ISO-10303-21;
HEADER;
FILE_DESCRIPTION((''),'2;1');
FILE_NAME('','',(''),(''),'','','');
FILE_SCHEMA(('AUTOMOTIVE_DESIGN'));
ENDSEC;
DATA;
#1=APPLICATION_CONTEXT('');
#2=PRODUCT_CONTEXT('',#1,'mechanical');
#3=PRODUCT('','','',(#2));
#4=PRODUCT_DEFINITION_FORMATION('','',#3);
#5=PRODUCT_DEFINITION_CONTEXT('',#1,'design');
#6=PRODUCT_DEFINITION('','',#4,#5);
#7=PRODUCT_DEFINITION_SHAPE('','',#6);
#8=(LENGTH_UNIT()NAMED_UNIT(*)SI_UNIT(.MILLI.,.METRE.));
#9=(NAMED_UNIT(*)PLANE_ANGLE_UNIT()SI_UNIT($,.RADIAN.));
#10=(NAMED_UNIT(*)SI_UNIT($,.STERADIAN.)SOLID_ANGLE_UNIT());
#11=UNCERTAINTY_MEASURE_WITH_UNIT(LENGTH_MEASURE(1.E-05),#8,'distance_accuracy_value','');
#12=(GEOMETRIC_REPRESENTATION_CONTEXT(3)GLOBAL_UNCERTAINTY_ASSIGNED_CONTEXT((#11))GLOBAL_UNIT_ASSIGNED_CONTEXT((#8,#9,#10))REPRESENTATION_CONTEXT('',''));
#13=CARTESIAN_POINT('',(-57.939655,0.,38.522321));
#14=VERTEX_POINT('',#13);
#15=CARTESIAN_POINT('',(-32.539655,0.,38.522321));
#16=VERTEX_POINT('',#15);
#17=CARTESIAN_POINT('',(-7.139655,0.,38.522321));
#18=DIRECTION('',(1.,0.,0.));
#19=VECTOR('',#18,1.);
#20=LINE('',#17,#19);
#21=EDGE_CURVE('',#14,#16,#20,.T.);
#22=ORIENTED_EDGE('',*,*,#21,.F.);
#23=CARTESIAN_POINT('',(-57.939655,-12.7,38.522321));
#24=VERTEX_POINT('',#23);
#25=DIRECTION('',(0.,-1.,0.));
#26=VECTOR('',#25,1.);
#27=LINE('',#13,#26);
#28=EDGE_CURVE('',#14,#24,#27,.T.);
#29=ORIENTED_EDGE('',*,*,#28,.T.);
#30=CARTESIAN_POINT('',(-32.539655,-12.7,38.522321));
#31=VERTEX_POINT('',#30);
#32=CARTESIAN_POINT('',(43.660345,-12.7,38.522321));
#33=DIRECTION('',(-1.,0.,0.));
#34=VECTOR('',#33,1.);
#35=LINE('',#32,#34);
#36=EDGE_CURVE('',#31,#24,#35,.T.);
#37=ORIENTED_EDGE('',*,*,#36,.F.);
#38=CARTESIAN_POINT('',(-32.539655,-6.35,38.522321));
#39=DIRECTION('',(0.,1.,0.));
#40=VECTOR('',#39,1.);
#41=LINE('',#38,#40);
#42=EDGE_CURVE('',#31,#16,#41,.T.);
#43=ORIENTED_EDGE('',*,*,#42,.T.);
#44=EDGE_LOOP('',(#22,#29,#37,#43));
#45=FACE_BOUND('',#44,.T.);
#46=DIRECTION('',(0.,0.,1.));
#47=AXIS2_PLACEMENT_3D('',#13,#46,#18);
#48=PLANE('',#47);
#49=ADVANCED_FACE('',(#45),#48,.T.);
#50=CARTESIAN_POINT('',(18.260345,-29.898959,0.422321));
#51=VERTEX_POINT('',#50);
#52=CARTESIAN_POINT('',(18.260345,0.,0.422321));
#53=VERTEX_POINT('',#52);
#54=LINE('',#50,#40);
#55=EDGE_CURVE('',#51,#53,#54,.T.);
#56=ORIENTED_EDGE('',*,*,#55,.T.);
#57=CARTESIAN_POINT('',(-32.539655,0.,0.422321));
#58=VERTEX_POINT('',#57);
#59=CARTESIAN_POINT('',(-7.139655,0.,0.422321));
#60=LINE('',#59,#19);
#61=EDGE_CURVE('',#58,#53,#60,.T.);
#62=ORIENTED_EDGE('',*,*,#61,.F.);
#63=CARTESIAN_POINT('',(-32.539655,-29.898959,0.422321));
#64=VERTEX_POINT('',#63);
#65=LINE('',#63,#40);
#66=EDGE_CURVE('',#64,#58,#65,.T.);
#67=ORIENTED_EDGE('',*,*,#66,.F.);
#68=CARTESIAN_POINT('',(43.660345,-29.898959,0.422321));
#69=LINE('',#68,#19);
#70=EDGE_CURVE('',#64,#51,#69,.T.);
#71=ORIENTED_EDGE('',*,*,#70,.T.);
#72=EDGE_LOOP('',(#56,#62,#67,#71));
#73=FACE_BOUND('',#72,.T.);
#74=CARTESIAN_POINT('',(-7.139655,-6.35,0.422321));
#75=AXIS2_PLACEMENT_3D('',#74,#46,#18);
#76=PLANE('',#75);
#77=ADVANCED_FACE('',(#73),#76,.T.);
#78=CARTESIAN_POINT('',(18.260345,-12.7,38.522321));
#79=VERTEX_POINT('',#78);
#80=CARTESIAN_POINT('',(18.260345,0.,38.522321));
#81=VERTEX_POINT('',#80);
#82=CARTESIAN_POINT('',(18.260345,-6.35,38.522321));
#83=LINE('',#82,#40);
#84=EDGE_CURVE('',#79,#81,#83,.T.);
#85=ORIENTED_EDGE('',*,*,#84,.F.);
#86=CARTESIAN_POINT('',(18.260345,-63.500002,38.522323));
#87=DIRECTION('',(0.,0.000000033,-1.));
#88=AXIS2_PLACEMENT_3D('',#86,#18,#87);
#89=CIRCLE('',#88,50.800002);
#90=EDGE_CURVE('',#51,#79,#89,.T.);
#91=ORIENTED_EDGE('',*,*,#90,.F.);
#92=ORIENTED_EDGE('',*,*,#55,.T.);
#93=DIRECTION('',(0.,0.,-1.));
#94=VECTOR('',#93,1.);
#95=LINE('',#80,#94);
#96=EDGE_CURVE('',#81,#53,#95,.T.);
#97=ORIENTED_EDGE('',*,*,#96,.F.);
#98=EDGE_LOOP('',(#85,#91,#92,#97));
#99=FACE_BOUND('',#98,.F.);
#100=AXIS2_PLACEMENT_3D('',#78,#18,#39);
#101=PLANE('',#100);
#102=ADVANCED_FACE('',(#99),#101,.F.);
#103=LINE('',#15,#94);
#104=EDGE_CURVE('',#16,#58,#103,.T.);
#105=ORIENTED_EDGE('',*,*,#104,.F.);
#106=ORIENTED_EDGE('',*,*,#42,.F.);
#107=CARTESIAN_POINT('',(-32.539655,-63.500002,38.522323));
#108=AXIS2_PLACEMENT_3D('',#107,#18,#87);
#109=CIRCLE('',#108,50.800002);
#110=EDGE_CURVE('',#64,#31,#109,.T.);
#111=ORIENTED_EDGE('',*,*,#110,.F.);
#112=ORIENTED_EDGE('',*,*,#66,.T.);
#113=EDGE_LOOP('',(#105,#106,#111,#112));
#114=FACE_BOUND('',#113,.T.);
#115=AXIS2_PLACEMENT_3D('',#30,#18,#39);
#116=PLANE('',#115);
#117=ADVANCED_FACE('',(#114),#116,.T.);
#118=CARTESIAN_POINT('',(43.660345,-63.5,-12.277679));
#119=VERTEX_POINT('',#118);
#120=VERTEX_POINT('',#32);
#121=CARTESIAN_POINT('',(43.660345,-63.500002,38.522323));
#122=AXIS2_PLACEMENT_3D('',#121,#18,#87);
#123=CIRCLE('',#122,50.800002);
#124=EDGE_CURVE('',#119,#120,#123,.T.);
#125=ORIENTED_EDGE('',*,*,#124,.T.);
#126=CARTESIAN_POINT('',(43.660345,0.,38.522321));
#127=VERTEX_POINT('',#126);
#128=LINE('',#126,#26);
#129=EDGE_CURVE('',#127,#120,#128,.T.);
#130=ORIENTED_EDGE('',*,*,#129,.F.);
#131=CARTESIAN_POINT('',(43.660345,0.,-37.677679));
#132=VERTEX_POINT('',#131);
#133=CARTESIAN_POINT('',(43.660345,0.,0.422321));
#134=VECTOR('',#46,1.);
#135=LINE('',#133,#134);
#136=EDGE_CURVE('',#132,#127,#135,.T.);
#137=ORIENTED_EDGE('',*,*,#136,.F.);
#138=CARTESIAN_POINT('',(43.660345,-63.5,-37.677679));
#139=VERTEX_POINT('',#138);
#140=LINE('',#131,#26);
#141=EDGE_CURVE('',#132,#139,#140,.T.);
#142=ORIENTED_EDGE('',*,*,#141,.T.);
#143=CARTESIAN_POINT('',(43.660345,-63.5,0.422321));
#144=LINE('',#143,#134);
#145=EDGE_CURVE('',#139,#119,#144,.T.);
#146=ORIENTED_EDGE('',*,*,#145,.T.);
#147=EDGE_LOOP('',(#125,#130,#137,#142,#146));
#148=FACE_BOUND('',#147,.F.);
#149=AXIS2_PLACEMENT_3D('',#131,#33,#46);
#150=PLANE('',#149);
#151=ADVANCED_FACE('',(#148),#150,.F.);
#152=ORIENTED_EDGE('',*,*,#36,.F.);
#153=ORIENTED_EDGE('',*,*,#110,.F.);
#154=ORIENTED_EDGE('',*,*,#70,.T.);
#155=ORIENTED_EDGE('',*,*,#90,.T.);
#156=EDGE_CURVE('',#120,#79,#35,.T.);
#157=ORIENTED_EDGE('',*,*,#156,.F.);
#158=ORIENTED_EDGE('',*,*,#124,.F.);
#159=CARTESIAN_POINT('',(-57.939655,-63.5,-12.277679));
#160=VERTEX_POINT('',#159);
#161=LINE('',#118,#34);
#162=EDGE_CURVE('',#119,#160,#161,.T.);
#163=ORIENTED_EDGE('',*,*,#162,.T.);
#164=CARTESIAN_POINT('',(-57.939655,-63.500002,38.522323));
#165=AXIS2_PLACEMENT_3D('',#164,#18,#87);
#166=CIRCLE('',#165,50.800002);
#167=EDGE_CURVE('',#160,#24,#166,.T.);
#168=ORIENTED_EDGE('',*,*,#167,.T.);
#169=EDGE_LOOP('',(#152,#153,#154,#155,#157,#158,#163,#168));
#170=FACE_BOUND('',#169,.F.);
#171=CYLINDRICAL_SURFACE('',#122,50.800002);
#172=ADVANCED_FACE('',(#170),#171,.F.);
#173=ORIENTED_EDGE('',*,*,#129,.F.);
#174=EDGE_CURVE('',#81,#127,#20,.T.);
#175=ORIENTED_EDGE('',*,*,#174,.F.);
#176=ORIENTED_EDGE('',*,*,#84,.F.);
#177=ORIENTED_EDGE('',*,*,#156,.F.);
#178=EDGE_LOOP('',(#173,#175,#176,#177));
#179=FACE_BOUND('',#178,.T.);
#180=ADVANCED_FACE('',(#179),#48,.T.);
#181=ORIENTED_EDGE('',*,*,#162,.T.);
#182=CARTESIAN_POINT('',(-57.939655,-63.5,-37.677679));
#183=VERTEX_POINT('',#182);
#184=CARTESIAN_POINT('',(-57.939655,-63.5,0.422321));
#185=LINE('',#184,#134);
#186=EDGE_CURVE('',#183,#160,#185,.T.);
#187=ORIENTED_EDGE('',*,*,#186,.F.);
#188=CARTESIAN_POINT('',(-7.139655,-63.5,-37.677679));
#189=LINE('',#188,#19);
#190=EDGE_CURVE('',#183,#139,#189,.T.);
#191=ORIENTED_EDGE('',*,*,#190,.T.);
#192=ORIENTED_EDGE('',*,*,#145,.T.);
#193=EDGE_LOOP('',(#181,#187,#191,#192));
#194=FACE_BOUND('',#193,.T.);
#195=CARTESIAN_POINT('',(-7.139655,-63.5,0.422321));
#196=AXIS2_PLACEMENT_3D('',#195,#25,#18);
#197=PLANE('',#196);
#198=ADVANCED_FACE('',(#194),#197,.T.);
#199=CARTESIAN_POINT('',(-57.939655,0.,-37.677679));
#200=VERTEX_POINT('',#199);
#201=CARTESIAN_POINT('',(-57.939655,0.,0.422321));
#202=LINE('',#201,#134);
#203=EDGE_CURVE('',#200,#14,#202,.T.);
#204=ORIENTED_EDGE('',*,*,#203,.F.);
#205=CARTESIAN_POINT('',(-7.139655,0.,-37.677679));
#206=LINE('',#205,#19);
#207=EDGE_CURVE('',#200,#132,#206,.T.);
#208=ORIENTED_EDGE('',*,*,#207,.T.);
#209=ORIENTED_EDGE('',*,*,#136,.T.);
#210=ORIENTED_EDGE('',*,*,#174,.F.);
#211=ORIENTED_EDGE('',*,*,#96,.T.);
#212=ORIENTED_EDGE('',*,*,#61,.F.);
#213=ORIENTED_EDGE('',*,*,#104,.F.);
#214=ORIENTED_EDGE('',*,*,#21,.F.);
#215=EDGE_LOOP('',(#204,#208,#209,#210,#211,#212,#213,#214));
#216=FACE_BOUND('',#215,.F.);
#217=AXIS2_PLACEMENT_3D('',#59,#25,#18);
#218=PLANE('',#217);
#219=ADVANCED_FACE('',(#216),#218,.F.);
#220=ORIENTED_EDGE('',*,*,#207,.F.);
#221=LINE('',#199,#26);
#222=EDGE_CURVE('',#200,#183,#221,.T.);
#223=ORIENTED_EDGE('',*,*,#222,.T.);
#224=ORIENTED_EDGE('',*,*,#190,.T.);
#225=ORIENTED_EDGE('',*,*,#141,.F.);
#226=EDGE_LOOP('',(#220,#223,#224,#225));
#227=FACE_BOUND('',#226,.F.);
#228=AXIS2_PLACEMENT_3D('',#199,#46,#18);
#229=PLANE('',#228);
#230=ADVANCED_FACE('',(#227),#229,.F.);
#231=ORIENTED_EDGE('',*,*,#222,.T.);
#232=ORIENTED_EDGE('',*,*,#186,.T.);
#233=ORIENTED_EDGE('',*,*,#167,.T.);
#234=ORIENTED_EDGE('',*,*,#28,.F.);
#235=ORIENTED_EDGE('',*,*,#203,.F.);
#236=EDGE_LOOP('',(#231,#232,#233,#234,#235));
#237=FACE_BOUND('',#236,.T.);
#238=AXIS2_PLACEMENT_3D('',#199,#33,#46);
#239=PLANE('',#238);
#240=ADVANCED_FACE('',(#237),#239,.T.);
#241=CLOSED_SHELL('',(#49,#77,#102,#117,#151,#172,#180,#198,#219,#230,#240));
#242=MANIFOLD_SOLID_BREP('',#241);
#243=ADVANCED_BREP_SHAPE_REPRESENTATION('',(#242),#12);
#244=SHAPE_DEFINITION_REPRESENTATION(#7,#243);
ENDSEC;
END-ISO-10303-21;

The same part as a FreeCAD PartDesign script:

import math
import FreeCAD as App
import Part
import Sketcher

V = App.Vector
Q = App.Units.Quantity


def add_polygon(sketch, points):
    """Adds a closed chain of lines whose ends are joined by coincident constraints."""
    first, n = sketch.GeometryCount, len(points)
    for a, b in zip(points, points[1:] + points[:1]):
        sketch.addGeometry(Part.LineSegment(App.Vector(*a, 0), App.Vector(*b, 0)), False)
    for i in range(n):
        sketch.addConstraint(Sketcher.Constraint("Coincident", first + i, 2, first + (i + 1) % n, 1))

doc = App.newDocument("Part")
params = doc.addObject("Spreadsheet::Sheet", "Params")
for row, (alias, value) in enumerate([
    ("sketch1_width", "4 in"),
    ("sketch1_height", "3 in"),
    ("pad1_length", "2.5 in"),
    ("sketch2_radius", "2.0000001 in"),
    ("sketch3_width", "2 in"),
    ("sketch3_height", "0.5 in"),
    ("pocket2_length", "1.5 in"),
    ("sketch4_width", "2 in"),
    ("sketch4_height", "1.5 in"),
], start=1):
    params.set(f"A{row}", alias)
    params.set(f"B{row}", "=" + value)
    params.setAlias(f"B{row}", alias)

body = doc.addObject("PartDesign::Body", "Body")

# Sketch on XZ plane
sketch1 = body.newObject("Sketcher::SketchObject", "Sketch")
sketch1.AttachmentSupport = (doc.getObject("XZ_Plane"), [""])
sketch1.MapMode = "FlatFace"
add_polygon(sketch1, [(-58, 39), (-58, -38), (44, -38), (44, 39)])  # lines 0-3
sketch1.addConstraint([
    Sketcher.Constraint("Vertical", 0),
    Sketcher.Constraint("Horizontal", 1),
    Sketcher.Constraint("Vertical", 2),
    Sketcher.Constraint("Horizontal", 3),
    Sketcher.Constraint("DistanceX", 1, 1, 1, 2, Q("4 in")),
    Sketcher.Constraint("DistanceY", 0, 2, 0, 1, Q("3 in")),
    Sketcher.Constraint("DistanceY", 0, 2, -1, 1, Q("37.677679 mm")),
    Sketcher.Constraint("DistanceX", 0, 2, -1, 1, Q("57.939655 mm")),
])
sketch1.setExpression("Constraints[8]", "Params.sketch1_width")
sketch1.setExpression("Constraints[9]", "Params.sketch1_height")
pad1 = body.newObject("PartDesign::Pad", "Pad")
pad1.Profile = sketch1
pad1.setExpression("Length", "Params.pad1_length")

# Sketch on YZ plane
sketch2 = body.newObject("Sketcher::SketchObject", "Sketch001")
sketch2.AttachmentSupport = (doc.getObject("YZ_Plane"), [""])
sketch2.MapMode = "FlatFace"
sketch2.AttachmentOffset = App.Placement(V(0, 0, 43.660345), App.Rotation())
sketch2.addGeometry([
    Part.LineSegment(V(-64, 39, 0), V(-64, -12, 0)),
    Part.ArcOfCircle(Part.Circle(V(-64, 39, 0), V(0, 0, 1), 51), math.radians(-90), math.radians(0)),
    Part.LineSegment(V(-13, 39, 0), V(-64, 39, 0)),
], False)
sketch2.addConstraint([
    Sketcher.Constraint("Coincident", 0, 2, 1, 1),
    Sketcher.Constraint("Coincident", 1, 2, 2, 1),
    Sketcher.Constraint("Coincident", 2, 2, 0, 1),
    Sketcher.Constraint("Vertical", 0),
    Sketcher.Constraint("Horizontal", 2),
    Sketcher.Constraint("Coincident", 2, 2, 1, 3),
    Sketcher.Constraint("Radius", 1, Q("2.0000001 in")),
    Sketcher.Constraint("DistanceX", 1, 3, -1, 1, Q("2.5000001 in")),
    Sketcher.Constraint("DistanceY", 0, 2, -1, 1, Q("12.277679 mm")),
])
sketch2.setExpression("Constraints[6]", "Params.sketch2_radius")
pocket1 = body.newObject("PartDesign::Pocket", "Pocket")
pocket1.Profile = sketch2
pocket1.Type = "ThroughAll"

# Sketch on XY plane
sketch3 = body.newObject("Sketcher::SketchObject", "Sketch002")
sketch3.AttachmentSupport = (doc.getObject("XY_Plane"), [""])
sketch3.MapMode = "FlatFace"
sketch3.AttachmentOffset = App.Placement(V(0, 0, 38.522321), App.Rotation())
add_polygon(sketch3, [(-33, 0), (-33, -13), (18, -13), (18, 0)])  # lines 0-3
sketch3.addConstraint([
    Sketcher.Constraint("Vertical", 0),
    Sketcher.Constraint("Horizontal", 1),
    Sketcher.Constraint("Vertical", 2),
    Sketcher.Constraint("Horizontal", 3),
    Sketcher.Constraint("PointOnObject", 2, 2, -1),
    Sketcher.Constraint("DistanceX", 1, 1, 1, 2, Q("2 in")),
    Sketcher.Constraint("DistanceY", 0, 2, 0, 1, Q("0.5 in")),
    Sketcher.Constraint("DistanceX", 0, 2, -1, 1, Q("32.539655 mm")),
])
sketch3.setExpression("Constraints[9]", "Params.sketch3_width")
sketch3.setExpression("Constraints[10]", "Params.sketch3_height")
pocket2 = body.newObject("PartDesign::Pocket", "Pocket001")
pocket2.Profile = sketch3
pocket2.setExpression("Length", "Params.pocket2_length")

# Sketch on XZ plane
sketch4 = body.newObject("Sketcher::SketchObject", "Sketch003")
sketch4.AttachmentSupport = (doc.getObject("XZ_Plane"), [""])
sketch4.MapMode = "FlatFace"
sketch4.AttachmentOffset = App.Placement(V(0, 0, 0.5 * 25.4), App.Rotation())
add_polygon(sketch4, [(18, 39), (18, 0), (-33, 0), (-33, 39)])  # lines 0-3
sketch4.addConstraint([
    Sketcher.Constraint("Vertical", 0),
    Sketcher.Constraint("Horizontal", 1),
    Sketcher.Constraint("Vertical", 2),
    Sketcher.Constraint("Horizontal", 3),
    Sketcher.Constraint("DistanceX", 1, 2, 1, 1, Q("2 in")),
    Sketcher.Constraint("DistanceY", 0, 2, 0, 1, Q("1.5 in")),
    Sketcher.Constraint("DistanceY", -1, 1, 0, 2, Q("0.422321 mm")),
    Sketcher.Constraint("DistanceX", -1, 1, 0, 2, Q("18.260345 mm")),
])
sketch4.setExpression("Constraints[8]", "Params.sketch4_width")
sketch4.setExpression("Constraints[9]", "Params.sketch4_height")
pocket3 = body.newObject("PartDesign::Pocket", "Pocket002")
pocket3.Profile = sketch4
pocket3.Type = "ThroughAll"
pocket3.Reversed = True

doc.recompute()
